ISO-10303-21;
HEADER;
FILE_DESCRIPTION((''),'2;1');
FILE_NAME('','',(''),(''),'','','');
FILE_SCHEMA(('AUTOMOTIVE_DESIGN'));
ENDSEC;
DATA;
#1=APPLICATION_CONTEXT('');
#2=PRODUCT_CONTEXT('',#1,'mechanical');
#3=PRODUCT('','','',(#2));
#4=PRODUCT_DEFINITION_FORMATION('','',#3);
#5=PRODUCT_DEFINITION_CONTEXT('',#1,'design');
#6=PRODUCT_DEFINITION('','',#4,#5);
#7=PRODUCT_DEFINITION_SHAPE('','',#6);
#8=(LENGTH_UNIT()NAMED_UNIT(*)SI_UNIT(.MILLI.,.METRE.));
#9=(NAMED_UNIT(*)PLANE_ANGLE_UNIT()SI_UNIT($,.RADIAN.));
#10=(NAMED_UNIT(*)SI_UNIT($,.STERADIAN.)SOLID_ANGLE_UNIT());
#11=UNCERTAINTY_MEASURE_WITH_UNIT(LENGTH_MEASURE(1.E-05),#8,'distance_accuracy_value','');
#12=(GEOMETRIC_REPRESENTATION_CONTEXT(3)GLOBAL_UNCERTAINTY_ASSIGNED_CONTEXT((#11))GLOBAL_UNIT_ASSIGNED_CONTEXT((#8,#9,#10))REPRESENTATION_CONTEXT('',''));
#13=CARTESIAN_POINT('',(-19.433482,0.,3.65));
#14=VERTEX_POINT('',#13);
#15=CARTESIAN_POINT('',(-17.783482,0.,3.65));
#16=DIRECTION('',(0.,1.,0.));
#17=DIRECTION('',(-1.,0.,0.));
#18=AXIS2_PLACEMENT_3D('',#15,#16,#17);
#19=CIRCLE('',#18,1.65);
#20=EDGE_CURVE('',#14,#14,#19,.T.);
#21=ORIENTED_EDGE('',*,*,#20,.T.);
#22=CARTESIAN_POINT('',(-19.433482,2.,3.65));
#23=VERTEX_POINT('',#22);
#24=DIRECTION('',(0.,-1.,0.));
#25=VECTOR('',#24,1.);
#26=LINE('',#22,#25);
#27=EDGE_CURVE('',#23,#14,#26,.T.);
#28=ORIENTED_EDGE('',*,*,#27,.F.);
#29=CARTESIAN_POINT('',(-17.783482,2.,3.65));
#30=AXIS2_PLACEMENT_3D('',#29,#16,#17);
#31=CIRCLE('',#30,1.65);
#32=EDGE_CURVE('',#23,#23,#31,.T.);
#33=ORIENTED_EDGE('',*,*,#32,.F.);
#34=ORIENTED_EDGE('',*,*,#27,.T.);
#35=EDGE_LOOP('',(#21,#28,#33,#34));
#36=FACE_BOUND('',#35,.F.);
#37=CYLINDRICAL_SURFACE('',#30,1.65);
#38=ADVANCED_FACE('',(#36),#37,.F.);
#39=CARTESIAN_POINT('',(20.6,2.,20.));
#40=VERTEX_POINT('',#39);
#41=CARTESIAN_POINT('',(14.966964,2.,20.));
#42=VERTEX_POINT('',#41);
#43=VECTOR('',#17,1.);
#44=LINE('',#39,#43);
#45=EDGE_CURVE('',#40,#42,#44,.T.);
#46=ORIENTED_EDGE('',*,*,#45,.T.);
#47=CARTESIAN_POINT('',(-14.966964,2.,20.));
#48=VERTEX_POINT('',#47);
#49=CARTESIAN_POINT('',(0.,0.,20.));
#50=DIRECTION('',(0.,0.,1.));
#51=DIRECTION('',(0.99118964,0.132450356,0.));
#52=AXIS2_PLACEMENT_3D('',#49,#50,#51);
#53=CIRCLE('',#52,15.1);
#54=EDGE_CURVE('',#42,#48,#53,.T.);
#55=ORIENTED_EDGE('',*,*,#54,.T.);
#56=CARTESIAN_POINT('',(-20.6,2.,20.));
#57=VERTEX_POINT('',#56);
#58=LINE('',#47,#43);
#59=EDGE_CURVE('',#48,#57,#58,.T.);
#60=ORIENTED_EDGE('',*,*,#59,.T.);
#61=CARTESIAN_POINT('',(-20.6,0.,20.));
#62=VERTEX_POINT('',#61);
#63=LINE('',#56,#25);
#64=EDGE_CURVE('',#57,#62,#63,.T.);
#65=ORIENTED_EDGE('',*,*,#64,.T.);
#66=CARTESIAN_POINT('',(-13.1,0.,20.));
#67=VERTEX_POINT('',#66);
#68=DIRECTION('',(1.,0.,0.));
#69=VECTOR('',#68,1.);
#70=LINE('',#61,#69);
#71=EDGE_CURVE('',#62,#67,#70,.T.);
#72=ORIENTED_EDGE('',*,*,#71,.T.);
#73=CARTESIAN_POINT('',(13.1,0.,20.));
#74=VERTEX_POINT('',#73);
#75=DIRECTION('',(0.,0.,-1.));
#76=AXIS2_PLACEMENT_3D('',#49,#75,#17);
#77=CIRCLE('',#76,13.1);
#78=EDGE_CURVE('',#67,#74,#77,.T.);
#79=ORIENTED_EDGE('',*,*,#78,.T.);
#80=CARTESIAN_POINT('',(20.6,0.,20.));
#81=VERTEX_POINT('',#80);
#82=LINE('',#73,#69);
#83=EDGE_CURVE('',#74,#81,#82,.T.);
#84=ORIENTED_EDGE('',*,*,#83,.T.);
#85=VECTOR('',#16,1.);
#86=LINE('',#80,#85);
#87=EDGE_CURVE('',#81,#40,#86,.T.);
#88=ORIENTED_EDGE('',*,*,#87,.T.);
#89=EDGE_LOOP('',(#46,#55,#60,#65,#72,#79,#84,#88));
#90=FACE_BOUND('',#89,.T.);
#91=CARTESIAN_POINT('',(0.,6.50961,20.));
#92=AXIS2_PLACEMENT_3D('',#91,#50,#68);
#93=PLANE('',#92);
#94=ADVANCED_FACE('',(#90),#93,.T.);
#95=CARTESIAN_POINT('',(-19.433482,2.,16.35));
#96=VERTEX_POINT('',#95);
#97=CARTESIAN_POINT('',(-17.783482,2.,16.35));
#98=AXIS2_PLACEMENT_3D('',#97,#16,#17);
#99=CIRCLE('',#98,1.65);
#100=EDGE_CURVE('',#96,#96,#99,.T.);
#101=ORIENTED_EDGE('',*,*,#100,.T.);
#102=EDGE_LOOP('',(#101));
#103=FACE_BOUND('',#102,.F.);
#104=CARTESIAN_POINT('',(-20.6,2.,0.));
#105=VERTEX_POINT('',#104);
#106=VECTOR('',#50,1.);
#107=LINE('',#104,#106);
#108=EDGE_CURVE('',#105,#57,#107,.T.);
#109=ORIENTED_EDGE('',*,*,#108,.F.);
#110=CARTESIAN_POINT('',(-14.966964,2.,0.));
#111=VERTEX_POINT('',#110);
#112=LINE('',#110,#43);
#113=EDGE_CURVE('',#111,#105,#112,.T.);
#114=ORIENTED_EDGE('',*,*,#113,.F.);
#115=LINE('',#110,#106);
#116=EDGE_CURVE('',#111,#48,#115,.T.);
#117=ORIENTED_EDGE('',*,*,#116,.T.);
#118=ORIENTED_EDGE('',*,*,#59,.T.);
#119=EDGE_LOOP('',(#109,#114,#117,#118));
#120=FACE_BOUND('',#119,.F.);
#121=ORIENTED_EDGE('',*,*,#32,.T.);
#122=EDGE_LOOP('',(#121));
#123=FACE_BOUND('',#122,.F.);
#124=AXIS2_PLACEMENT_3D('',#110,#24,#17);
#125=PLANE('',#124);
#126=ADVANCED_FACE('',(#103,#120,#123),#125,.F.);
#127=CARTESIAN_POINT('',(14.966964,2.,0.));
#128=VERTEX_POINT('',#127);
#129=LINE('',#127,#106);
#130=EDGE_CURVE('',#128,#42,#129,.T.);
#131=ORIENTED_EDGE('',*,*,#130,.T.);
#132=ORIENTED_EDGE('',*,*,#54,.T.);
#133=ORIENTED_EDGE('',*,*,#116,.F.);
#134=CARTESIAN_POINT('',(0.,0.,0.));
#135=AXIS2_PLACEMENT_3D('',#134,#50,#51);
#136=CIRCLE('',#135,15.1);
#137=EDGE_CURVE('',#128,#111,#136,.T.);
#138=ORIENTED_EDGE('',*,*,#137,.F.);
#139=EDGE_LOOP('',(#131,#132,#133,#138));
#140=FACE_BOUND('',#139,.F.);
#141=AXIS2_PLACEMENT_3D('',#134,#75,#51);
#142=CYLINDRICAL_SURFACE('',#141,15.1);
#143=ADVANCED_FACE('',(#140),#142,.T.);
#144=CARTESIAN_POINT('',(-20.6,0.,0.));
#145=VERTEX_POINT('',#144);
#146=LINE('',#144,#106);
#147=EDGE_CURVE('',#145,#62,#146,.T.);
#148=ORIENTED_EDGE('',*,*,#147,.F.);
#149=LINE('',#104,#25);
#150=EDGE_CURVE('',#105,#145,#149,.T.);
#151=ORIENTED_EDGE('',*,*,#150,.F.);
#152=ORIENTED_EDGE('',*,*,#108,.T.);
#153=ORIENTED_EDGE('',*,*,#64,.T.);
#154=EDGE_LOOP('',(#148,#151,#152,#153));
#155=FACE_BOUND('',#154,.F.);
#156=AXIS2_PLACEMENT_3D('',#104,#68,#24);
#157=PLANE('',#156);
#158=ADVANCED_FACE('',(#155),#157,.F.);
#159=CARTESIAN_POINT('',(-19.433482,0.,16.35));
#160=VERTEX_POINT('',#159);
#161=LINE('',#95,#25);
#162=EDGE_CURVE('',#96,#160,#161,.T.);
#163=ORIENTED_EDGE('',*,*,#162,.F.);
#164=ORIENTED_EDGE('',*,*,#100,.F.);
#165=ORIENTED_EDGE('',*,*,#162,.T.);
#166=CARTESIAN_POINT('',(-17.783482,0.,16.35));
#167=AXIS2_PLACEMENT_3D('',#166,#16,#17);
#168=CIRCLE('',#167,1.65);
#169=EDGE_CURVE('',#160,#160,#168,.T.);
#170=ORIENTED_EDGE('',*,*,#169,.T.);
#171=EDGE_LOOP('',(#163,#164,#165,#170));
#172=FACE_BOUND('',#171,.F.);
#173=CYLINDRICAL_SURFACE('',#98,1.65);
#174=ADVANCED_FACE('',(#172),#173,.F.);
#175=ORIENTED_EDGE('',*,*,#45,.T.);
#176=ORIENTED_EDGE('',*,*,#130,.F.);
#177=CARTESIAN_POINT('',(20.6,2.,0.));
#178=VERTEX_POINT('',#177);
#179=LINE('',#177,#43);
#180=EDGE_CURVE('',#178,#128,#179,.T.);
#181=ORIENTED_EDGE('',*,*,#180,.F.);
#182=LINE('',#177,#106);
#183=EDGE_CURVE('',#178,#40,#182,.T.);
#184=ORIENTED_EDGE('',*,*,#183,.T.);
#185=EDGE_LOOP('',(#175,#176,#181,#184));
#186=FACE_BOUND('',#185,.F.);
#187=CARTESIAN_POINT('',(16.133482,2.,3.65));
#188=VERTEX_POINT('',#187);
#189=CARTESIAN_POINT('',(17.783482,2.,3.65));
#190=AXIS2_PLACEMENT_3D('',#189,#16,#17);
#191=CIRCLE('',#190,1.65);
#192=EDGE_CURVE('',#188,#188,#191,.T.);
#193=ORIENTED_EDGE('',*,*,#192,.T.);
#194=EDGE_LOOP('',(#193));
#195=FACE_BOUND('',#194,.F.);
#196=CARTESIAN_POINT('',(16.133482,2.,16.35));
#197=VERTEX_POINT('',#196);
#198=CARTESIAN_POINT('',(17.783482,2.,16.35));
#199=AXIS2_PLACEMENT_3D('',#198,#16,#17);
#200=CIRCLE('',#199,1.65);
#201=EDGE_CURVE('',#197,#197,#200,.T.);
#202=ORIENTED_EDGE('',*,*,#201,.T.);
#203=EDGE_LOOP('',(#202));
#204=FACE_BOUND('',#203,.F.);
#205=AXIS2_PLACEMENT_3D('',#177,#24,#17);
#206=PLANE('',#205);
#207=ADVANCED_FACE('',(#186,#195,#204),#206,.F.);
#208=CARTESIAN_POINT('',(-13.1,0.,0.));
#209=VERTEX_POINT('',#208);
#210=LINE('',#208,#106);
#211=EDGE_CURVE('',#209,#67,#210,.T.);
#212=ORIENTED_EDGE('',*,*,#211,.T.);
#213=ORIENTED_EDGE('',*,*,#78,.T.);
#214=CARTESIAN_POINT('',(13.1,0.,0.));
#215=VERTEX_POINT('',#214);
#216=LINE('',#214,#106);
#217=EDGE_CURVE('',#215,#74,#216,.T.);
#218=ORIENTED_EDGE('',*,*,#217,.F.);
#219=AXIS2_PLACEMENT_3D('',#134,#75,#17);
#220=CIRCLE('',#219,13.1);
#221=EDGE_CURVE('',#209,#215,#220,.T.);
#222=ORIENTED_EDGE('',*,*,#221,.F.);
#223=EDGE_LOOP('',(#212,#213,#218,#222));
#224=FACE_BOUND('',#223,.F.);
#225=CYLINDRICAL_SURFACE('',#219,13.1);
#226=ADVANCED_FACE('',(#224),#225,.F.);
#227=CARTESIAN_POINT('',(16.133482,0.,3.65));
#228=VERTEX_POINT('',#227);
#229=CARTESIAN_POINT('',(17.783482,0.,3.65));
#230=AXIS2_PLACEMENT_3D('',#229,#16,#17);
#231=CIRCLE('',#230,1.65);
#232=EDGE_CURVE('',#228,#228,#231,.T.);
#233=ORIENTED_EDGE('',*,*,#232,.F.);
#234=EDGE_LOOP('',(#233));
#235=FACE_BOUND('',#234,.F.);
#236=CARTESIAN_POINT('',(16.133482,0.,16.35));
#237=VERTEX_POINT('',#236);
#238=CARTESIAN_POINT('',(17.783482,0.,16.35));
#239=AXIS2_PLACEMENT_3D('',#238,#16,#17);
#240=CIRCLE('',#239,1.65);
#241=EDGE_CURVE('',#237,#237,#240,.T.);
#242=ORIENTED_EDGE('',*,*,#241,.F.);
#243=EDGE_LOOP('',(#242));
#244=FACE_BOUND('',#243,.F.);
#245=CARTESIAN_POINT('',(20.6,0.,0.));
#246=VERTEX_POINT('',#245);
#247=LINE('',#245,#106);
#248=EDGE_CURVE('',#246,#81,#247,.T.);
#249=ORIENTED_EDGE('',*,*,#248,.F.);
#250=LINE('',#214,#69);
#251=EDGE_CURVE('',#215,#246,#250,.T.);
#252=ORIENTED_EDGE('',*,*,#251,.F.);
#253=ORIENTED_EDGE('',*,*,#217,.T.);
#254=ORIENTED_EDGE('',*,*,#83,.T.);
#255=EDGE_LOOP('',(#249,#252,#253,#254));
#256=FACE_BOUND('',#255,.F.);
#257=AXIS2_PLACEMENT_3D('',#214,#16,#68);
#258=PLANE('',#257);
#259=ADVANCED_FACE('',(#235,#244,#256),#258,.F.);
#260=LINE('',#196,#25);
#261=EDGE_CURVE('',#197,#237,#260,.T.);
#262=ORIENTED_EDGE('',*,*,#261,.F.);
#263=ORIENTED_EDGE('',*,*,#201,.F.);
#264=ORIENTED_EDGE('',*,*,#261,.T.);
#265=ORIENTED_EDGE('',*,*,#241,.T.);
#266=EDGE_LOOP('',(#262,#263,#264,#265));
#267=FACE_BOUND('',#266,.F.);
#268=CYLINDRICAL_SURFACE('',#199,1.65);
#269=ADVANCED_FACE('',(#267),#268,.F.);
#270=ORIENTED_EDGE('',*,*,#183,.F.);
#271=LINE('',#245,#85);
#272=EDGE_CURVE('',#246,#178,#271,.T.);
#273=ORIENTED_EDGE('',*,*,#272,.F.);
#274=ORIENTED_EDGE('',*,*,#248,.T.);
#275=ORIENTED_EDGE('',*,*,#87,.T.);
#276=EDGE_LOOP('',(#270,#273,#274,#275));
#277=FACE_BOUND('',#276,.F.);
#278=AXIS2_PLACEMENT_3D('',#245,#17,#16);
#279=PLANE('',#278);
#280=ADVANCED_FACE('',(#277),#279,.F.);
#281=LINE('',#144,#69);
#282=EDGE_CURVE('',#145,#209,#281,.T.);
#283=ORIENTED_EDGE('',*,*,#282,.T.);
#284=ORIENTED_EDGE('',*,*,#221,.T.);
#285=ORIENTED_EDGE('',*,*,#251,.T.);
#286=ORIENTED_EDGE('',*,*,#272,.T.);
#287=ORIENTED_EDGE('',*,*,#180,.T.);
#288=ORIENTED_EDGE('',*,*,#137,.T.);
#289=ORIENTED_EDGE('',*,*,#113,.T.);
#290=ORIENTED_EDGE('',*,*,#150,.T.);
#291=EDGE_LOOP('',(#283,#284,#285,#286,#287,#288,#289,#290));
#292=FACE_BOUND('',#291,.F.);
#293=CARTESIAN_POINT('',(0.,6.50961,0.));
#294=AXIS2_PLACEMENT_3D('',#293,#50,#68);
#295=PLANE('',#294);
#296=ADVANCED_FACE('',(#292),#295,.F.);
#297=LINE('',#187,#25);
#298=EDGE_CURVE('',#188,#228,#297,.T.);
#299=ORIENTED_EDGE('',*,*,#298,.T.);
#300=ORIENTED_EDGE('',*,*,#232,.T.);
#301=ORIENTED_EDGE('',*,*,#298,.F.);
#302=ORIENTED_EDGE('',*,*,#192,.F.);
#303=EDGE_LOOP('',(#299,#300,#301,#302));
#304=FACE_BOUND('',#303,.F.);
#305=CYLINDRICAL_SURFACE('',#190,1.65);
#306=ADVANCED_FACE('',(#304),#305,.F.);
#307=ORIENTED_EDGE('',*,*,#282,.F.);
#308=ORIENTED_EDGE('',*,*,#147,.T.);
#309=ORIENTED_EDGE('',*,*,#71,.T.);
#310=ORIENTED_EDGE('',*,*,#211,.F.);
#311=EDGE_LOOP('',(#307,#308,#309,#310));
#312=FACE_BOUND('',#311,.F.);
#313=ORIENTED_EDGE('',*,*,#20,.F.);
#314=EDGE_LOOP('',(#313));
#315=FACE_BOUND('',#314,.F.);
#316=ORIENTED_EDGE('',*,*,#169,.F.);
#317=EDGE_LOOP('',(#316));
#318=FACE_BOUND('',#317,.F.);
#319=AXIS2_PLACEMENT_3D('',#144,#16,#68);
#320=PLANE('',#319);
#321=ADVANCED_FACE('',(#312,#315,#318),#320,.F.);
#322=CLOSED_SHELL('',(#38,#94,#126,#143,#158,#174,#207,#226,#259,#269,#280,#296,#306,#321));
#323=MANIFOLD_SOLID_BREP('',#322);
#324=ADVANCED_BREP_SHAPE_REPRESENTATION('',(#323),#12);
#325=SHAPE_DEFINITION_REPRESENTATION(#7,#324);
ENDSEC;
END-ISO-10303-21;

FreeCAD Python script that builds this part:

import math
import FreeCAD as App
import Part
import Sketcher
from FreeCAD import Vector
Q = App.Units.Quantity

doc = App.newDocument("Part")
body = doc.addObject("PartDesign::Body", "Body")

# Sketch on XY plane
sketch1 = doc.addObject("Sketcher::SketchObject", "Sketch")
body.addObject(sketch1)
sketch1.AttachmentSupport = (doc.XY_Plane, [""])
sketch1.MapMode = "FlatFace"
sketch1.addGeometry(Part.ArcOfCircle(Part.Circle(Vector(0, 0, 0), Vector(0, 0, 1), 13.1), math.radians(0), math.radians(180)), False)
sketch1.addGeometry(Part.LineSegment(Vector(13.1, 0, 0), Vector(20.6, 0, 0)), False)
sketch1.addGeometry(Part.LineSegment(Vector(20.6, 0, 0), Vector(20.6, 2, 0)), False)
sketch1.addGeometry(Part.LineSegment(Vector(20.6, 2, 0), Vector(15, 2, 0)), False)
sketch1.addGeometry(Part.ArcOfCircle(Part.Circle(Vector(0, 0, 0), Vector(0, 0, 1), 15.1), math.radians(8), math.radians(172)), False)
sketch1.addGeometry(Part.LineSegment(Vector(-15, 2, 0), Vector(-20.6, 2, 0)), False)
sketch1.addGeometry(Part.LineSegment(Vector(-20.6, 2, 0), Vector(-20.6, 0, 0)), False)
sketch1.addGeometry(Part.LineSegment(Vector(-20.6, 0, 0), Vector(-13.1, 0, 0)), False)
sketch1.addConstraint(Sketcher.Constraint("Coincident", 0, 1, 1, 1))
sketch1.addConstraint(Sketcher.Constraint("Coincident", 1, 2, 2, 1))
sketch1.addConstraint(Sketcher.Constraint("Coincident", 2, 2, 3, 1))
sketch1.addConstraint(Sketcher.Constraint("Coincident", 3, 2, 4, 1))
sketch1.addConstraint(Sketcher.Constraint("Coincident", 4, 2, 5, 1))
sketch1.addConstraint(Sketcher.Constraint("Coincident", 5, 2, 6, 1))
sketch1.addConstraint(Sketcher.Constraint("Coincident", 6, 2, 7, 1))
sketch1.addConstraint(Sketcher.Constraint("Coincident", 7, 2, 0, 2))
sketch1.addConstraint(Sketcher.Constraint("Horizontal", 1))
sketch1.addConstraint(Sketcher.Constraint("Vertical", 2))
sketch1.addConstraint(Sketcher.Constraint("Horizontal", 3))
sketch1.addConstraint(Sketcher.Constraint("Horizontal", 5))
sketch1.addConstraint(Sketcher.Constraint("Vertical", 6))
sketch1.addConstraint(Sketcher.Constraint("Horizontal", 7))
sketch1.addConstraint(Sketcher.Constraint("Coincident", 0, 3, -1, 1))
sketch1.addConstraint(Sketcher.Constraint("Coincident", 4, 3, -1, 1))
sketch1.addConstraint(Sketcher.Constraint("Symmetric", 1, 2, 6, 2, -1, 1))
sketch1.addConstraint(Sketcher.Constraint("PointOnObject", 0, 1, -1))
sketch1.addConstraint(Sketcher.Constraint("Horizontal", 3, 2, 4, 2))
sketch1.addConstraint(Sketcher.Constraint("Radius", 0, Q("13.1 mm")))
sketch1.addConstraint(Sketcher.Constraint("Radius", 4, Q("15.1 mm")))
sketch1.addConstraint(Sketcher.Constraint("DistanceY", 2, 1, 2, 2, Q("2 mm")))
sketch1.addConstraint(Sketcher.Constraint("DistanceX", 1, 1, 1, 2, Q("7.5 mm")))
pad1 = doc.addObject("PartDesign::Pad", "Pad")
body.addObject(pad1)
pad1.Profile = sketch1
pad1.Length = 20

# Sketch on XZ plane
sketch2 = doc.addObject("Sketcher::SketchObject", "Sketch001")
body.addObject(sketch2)
sketch2.AttachmentSupport = (doc.XZ_Plane, [""])
sketch2.MapMode = "FlatFace"
sketch2.AttachmentOffset = App.Placement(Vector(0, 0, -2), App.Rotation())
sketch2.addGeometry(Part.Circle(Vector(-17.8, 16.4, 0), Vector(0, 0, 1), 1.6), False)
sketch2.addGeometry(Part.Circle(Vector(-17.8, 3.6, 0), Vector(0, 0, 1), 1.6), False)
sketch2.addConstraint(Sketcher.Constraint("Equal", 0, 1))
sketch2.addConstraint(Sketcher.Constraint("Vertical", 0, 3, 1, 3))
sketch2.addConstraint(Sketcher.Constraint("Diameter", 0, Q("3.3 mm")))
sketch2.addConstraint(Sketcher.Constraint("DistanceY", 1, 3, 0, 3, Q("12.7 mm")))
sketch2.addConstraint(Sketcher.Constraint("DistanceY", -1, 1, 0, 3, Q("16.35 mm")))
sketch2.addConstraint(Sketcher.Constraint("DistanceX", 0, 3, -1, 1, Q("17.783482 mm")))
pocket1 = doc.addObject("PartDesign::Pocket", "Pocket")
body.addObject(pocket1)
pocket1.Profile = sketch2
pocket1.Length = 25
pocket1.Reversed = True

# Sketch on XZ plane
sketch3 = doc.addObject("Sketcher::SketchObject", "Sketch002")
body.addObject(sketch3)
sketch3.AttachmentSupport = (doc.XZ_Plane, [""])
sketch3.MapMode = "FlatFace"
sketch3.AttachmentOffset = App.Placement(Vector(0, 0, -2), App.Rotation())
sketch3.addGeometry(Part.Circle(Vector(17.8, 16.4, 0), Vector(0, 0, 1), 1.6), False)
sketch3.addGeometry(Part.Circle(Vector(17.8, 3.6, 0), Vector(0, 0, 1), 1.6), False)
sketch3.addConstraint(Sketcher.Constraint("Equal", 0, 1))
sketch3.addConstraint(Sketcher.Constraint("Vertical", 0, 3, 1, 3))
sketch3.addConstraint(Sketcher.Constraint("Diameter", 0, Q("3.3 mm")))
sketch3.addConstraint(Sketcher.Constraint("DistanceY", 1, 3, 0, 3, Q("12.7 mm")))
sketch3.addConstraint(Sketcher.Constraint("DistanceY", -1, 1, 0, 3, Q("16.35 mm")))
sketch3.addConstraint(Sketcher.Constraint("DistanceX", -1, 1, 0, 3, Q("17.783482 mm")))
pocket2 = doc.addObject("PartDesign::Pocket", "Pocket001")
body.addObject(pocket2)
pocket2.Profile = sketch3
pocket2.Length = 25
pocket2.Reversed = True

doc.recompute()
